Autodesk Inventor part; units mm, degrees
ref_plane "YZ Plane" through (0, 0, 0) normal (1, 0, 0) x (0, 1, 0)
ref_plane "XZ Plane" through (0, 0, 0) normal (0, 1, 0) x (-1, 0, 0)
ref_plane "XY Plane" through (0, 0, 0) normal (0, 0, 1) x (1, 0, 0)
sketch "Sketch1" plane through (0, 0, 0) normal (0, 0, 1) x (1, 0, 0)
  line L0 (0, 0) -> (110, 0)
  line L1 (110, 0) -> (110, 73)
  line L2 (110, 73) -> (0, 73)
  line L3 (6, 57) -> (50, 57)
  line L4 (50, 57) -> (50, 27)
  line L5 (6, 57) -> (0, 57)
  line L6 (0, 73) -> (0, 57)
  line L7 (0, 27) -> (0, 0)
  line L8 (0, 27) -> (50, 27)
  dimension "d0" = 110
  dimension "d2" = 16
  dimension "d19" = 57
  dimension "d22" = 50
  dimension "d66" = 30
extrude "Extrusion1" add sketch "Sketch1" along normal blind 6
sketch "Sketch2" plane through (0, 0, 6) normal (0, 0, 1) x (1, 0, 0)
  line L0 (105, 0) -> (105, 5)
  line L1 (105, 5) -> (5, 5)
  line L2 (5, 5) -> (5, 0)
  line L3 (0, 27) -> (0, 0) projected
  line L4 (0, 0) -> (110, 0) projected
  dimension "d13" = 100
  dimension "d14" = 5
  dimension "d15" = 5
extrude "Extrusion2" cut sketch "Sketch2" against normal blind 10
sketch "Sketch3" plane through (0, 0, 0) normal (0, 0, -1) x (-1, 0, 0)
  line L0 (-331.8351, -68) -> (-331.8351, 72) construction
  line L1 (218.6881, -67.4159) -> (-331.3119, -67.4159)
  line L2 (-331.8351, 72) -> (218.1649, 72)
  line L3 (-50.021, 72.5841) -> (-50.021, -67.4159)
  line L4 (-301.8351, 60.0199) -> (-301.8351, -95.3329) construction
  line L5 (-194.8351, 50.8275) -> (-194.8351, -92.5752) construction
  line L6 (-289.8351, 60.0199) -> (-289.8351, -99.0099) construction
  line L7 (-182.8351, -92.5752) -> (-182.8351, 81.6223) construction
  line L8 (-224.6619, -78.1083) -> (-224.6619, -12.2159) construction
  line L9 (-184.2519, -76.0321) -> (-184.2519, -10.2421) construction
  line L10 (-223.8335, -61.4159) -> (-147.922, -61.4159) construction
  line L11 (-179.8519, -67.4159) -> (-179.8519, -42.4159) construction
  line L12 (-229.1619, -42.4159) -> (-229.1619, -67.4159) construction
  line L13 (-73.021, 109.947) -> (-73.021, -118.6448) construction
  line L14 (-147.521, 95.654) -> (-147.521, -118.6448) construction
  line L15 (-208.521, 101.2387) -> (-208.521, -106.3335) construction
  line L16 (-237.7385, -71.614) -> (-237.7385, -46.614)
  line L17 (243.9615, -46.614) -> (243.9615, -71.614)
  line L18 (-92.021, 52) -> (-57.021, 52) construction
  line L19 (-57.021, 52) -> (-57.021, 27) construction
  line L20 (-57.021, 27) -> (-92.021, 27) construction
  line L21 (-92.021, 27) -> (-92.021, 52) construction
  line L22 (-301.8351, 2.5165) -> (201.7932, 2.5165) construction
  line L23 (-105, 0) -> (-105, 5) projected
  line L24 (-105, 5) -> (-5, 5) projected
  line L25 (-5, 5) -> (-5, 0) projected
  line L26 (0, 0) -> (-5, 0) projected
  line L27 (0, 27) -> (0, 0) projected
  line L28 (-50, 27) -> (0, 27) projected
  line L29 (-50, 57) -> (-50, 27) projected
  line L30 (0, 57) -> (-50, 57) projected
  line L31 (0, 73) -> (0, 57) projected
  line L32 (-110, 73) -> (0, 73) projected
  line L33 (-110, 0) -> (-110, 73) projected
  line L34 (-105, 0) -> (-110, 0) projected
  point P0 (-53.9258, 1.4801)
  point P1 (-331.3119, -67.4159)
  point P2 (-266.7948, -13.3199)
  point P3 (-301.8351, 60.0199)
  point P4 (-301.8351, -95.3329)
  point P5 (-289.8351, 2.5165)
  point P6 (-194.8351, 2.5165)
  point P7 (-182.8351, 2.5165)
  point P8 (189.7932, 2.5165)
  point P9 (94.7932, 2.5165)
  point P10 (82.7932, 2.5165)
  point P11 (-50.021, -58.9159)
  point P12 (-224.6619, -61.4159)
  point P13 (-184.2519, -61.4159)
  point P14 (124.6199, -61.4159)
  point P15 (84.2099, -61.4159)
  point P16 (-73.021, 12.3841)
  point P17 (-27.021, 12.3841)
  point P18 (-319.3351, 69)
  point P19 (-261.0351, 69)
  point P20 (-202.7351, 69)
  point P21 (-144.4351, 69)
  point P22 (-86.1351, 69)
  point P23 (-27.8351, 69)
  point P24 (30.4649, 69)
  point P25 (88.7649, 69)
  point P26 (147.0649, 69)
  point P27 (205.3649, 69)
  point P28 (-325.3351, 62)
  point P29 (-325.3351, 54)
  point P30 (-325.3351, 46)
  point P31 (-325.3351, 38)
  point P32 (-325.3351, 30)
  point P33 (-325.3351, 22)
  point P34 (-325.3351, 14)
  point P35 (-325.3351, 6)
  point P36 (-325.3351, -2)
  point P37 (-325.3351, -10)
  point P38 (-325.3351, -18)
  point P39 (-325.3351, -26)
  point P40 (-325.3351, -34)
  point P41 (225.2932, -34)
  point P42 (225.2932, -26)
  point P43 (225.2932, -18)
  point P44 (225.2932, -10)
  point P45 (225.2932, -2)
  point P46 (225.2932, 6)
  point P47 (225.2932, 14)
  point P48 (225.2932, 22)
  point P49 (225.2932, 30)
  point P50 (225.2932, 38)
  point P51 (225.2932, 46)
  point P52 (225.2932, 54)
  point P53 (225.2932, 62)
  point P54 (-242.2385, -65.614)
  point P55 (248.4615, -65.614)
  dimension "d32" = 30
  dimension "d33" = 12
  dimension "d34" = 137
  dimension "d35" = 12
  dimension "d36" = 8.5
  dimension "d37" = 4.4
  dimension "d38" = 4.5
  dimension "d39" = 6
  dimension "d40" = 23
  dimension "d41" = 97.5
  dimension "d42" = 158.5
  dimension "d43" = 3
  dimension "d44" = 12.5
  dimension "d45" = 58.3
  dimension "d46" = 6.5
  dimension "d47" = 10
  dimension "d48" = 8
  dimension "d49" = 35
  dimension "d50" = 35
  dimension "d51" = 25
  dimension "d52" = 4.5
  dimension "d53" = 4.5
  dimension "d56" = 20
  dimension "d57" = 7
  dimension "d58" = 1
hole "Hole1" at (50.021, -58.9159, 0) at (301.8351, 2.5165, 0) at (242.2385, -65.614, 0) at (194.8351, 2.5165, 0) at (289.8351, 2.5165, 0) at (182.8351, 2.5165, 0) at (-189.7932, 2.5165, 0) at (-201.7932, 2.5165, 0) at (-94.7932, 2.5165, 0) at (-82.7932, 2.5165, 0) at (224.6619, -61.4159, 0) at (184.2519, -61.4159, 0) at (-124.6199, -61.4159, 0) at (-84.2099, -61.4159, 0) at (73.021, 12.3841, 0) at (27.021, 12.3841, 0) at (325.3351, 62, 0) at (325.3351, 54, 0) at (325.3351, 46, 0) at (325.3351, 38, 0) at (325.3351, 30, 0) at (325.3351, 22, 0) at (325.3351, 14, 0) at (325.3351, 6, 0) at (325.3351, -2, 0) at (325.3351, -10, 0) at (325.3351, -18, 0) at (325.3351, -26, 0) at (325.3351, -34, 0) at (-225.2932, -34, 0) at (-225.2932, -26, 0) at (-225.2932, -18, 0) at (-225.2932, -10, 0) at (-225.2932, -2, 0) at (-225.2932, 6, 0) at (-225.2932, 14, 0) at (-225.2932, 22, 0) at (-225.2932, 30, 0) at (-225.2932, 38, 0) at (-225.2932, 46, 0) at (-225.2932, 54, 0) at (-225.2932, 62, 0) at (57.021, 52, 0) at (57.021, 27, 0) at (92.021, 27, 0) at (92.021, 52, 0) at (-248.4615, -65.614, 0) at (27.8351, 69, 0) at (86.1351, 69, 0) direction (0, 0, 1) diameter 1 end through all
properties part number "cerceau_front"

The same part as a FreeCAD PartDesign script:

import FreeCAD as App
import Part
import Sketcher
from FreeCAD import Vector
Q = App.Units.Quantity


def add_polygon(sketch, points):
    """Adds a closed chain of lines whose ends are joined by coincident constraints."""
    first, n = sketch.GeometryCount, len(points)
    for a, b in zip(points, points[1:] + points[:1]):
        sketch.addGeometry(Part.LineSegment(App.Vector(*a, 0), App.Vector(*b, 0)), False)
    for i in range(n):
        sketch.addConstraint(Sketcher.Constraint("Coincident", first + i, 2, first + (i + 1) % n, 1))

doc = App.newDocument("Part")
body = doc.addObject("PartDesign::Body", "Body")

# Sketch on XY plane
sketch1 = body.newObject("Sketcher::SketchObject", "Sketch")
sketch1.AttachmentSupport = (doc.getObject("XY_Plane"), [""])
sketch1.MapMode = "FlatFace"
add_polygon(sketch1, [(0, 27), (0, 0), (110, 0), (110, 73), (0, 73), (0, 57), (50, 57), (50, 27)])  # lines 0-7
sketch1.addConstraint([
    Sketcher.Constraint("Vertical", 0),
    Sketcher.Constraint("Horizontal", 1),
    Sketcher.Constraint("Vertical", 2),
    Sketcher.Constraint("Horizontal", 3),
    Sketcher.Constraint("Vertical", 4),
    Sketcher.Constraint("Horizontal", 5),
    Sketcher.Constraint("Vertical", 6),
    Sketcher.Constraint("Horizontal", 7),
    Sketcher.Constraint("Coincident", 0, 2, -1, 1),
    Sketcher.Constraint("PointOnObject", 3, 2, -2),
    Sketcher.Constraint("DistanceX", 1, 1, 1, 2, Q("110 mm")),
    Sketcher.Constraint("DistanceX", 5, 1, 5, 2, Q("50 mm")),
    Sketcher.Constraint("DistanceY", 4, 2, 4, 1, Q("16 mm")),
    Sketcher.Constraint("DistanceY", 6, 2, 6, 1, Q("30 mm")),
    Sketcher.Constraint("DistanceY", -1, 1, 4, 2, Q("57 mm")),
])
pad1 = body.newObject("PartDesign::Pad", "Pad")
pad1.Profile = sketch1
pad1.Length = 6

# Sketch on XY plane
sketch2 = body.newObject("Sketcher::SketchObject", "Sketch001")
sketch2.AttachmentSupport = (doc.getObject("XY_Plane"), [""])
sketch2.MapMode = "FlatFace"
sketch2.AttachmentOffset = App.Placement(Vector(0, 0, 6), App.Rotation())
add_polygon(sketch2, [(5, 0), (105, 0), (105, 5), (5, 5)])  # lines 0-3
sketch2.addConstraint([
    Sketcher.Constraint("Horizontal", 0),
    Sketcher.Constraint("Vertical", 1),
    Sketcher.Constraint("Horizontal", 2),
    Sketcher.Constraint("Vertical", 3),
    Sketcher.Constraint("PointOnObject", 0, 2, -1),
    Sketcher.Constraint("DistanceX", 0, 1, 0, 2, Q("100 mm")),
    Sketcher.Constraint("DistanceY", 1, 1, 1, 2, Q("5 mm")),
    Sketcher.Constraint("DistanceX", -1, 1, 2, 2, Q("5 mm")),
])
pocket1 = body.newObject("PartDesign::Pocket", "Pocket")
pocket1.Profile = sketch2
pocket1.Length = 10

# Sketch on XY plane
sketch3 = body.newObject("Sketcher::SketchObject", "Sketch002")
sketch3.AttachmentSupport = (doc.getObject("XY_Plane"), [""])
sketch3.MapMode = "FlatFace"
sketch3.addGeometry([
    Part.Circle(Vector(50, -58.9, 0), Vector(0, 0, 1), 0.5),  # 0
    Part.Circle(Vector(301.8, 2.5, 0), Vector(0, 0, 1), 0.5),  # 1
    Part.Circle(Vector(242.2, -65.6, 0), Vector(0, 0, 1), 0.5),  # 2
    Part.Circle(Vector(194.8, 2.5, 0), Vector(0, 0, 1), 0.5),  # 3
    Part.Circle(Vector(289.8, 2.5, 0), Vector(0, 0, 1), 0.5),  # 4
    Part.Circle(Vector(182.8, 2.5, 0), Vector(0, 0, 1), 0.5),  # 5
    Part.Circle(Vector(-189.8, 2.5, 0), Vector(0, 0, 1), 0.5),  # 6
    Part.Circle(Vector(-201.8, 2.5, 0), Vector(0, 0, 1), 0.5),  # 7
    Part.Circle(Vector(-94.8, 2.5, 0), Vector(0, 0, 1), 0.5),  # 8
    Part.Circle(Vector(-82.8, 2.5, 0), Vector(0, 0, 1), 0.5),  # 9
    Part.Circle(Vector(224.7, -61.4, 0), Vector(0, 0, 1), 0.5),  # 10
    Part.Circle(Vector(184.3, -61.4, 0), Vector(0, 0, 1), 0.5),  # 11
    Part.Circle(Vector(-124.6, -61.4, 0), Vector(0, 0, 1), 0.5),  # 12
    Part.Circle(Vector(-84.2, -61.4, 0), Vector(0, 0, 1), 0.5),  # 13
    Part.Circle(Vector(73, 12.4, 0), Vector(0, 0, 1), 0.5),  # 14
    Part.Circle(Vector(27, 12.4, 0), Vector(0, 0, 1), 0.5),  # 15
    Part.Circle(Vector(325.3, 62, 0), Vector(0, 0, 1), 0.5),  # 16
    Part.Circle(Vector(325.3, 54, 0), Vector(0, 0, 1), 0.5),  # 17
    Part.Circle(Vector(325.3, 46, 0), Vector(0, 0, 1), 0.5),  # 18
    Part.Circle(Vector(325.3, 38, 0), Vector(0, 0, 1), 0.5),  # 19
    Part.Circle(Vector(325.3, 30, 0), Vector(0, 0, 1), 0.5),  # 20
    Part.Circle(Vector(325.3, 22, 0), Vector(0, 0, 1), 0.5),  # 21
    Part.Circle(Vector(325.3, 14, 0), Vector(0, 0, 1), 0.5),  # 22
    Part.Circle(Vector(325.3, 6, 0), Vector(0, 0, 1), 0.5),  # 23
    Part.Circle(Vector(325.3, -2, 0), Vector(0, 0, 1), 0.5),  # 24
    Part.Circle(Vector(325.3, -10, 0), Vector(0, 0, 1), 0.5),  # 25
    Part.Circle(Vector(325.3, -18, 0), Vector(0, 0, 1), 0.5),  # 26
    Part.Circle(Vector(325.3, -26, 0), Vector(0, 0, 1), 0.5),  # 27
    Part.Circle(Vector(325.3, -34, 0), Vector(0, 0, 1), 0.5),  # 28
    Part.Circle(Vector(-225.3, -34, 0), Vector(0, 0, 1), 0.5),  # 29
    Part.Circle(Vector(-225.3, -26, 0), Vector(0, 0, 1), 0.5),  # 30
    Part.Circle(Vector(-225.3, -18, 0), Vector(0, 0, 1), 0.5),  # 31
    Part.Circle(Vector(-225.3, -10, 0), Vector(0, 0, 1), 0.5),  # 32
    Part.Circle(Vector(-225.3, -2, 0), Vector(0, 0, 1), 0.5),  # 33
    Part.Circle(Vector(-225.3, 6, 0), Vector(0, 0, 1), 0.5),  # 34
    Part.Circle(Vector(-225.3, 14, 0), Vector(0, 0, 1), 0.5),  # 35
    Part.Circle(Vector(-225.3, 22, 0), Vector(0, 0, 1), 0.5),  # 36
    Part.Circle(Vector(-225.3, 30, 0), Vector(0, 0, 1), 0.5),  # 37
    Part.Circle(Vector(-225.3, 38, 0), Vector(0, 0, 1), 0.5),  # 38
    Part.Circle(Vector(-225.3, 46, 0), Vector(0, 0, 1), 0.5),  # 39
    Part.Circle(Vector(-225.3, 54, 0), Vector(0, 0, 1), 0.5),  # 40
    Part.Circle(Vector(-225.3, 62, 0), Vector(0, 0, 1), 0.5),  # 41
    Part.Circle(Vector(57, 52, 0), Vector(0, 0, 1), 0.5),  # 42
    Part.Circle(Vector(57, 27, 0), Vector(0, 0, 1), 0.5),  # 43
    Part.Circle(Vector(92, 27, 0), Vector(0, 0, 1), 0.5),  # 44
    Part.Circle(Vector(92, 52, 0), Vector(0, 0, 1), 0.5),  # 45
    Part.Circle(Vector(-248.5, -65.6, 0), Vector(0, 0, 1), 0.5),  # 46
    Part.Circle(Vector(27.8, 69, 0), Vector(0, 0, 1), 0.5),  # 47
    Part.Circle(Vector(86.1, 69, 0), Vector(0, 0, 1), 0.5),  # 48
], False)
sketch3.addConstraint([
    Sketcher.Constraint("Equal", 0, 1),
    Sketcher.Constraint("Equal", 1, 2),
    Sketcher.Constraint("Equal", 2, 3),
    Sketcher.Constraint("Equal", 3, 4),
    Sketcher.Constraint("Equal", 4, 5),
    Sketcher.Constraint("Equal", 5, 6),
    Sketcher.Constraint("Equal", 6, 7),
    Sketcher.Constraint("Equal", 7, 8),
    Sketcher.Constraint("Equal", 8, 9),
    Sketcher.Constraint("Equal", 9, 10),
    Sketcher.Constraint("Equal", 10, 11),
    Sketcher.Constraint("Equal", 11, 12),
    Sketcher.Constraint("Equal", 12, 13),
    Sketcher.Constraint("Equal", 13, 14),
    Sketcher.Constraint("Equal", 14, 15),
    Sketcher.Constraint("Equal", 15, 16),
    Sketcher.Constraint("Equal", 16, 17),
    Sketcher.Constraint("Equal", 17, 18),
    Sketcher.Constraint("Equal", 18, 19),
    Sketcher.Constraint("Equal", 19, 20),
    Sketcher.Constraint("Equal", 20, 21),
    Sketcher.Constraint("Equal", 21, 22),
    Sketcher.Constraint("Equal", 22, 23),
    Sketcher.Constraint("Equal", 23, 24),
    Sketcher.Constraint("Equal", 24, 25),
    Sketcher.Constraint("Equal", 25, 26),
    Sketcher.Constraint("Equal", 26, 27),
    Sketcher.Constraint("Equal", 27, 28),
    Sketcher.Constraint("Equal", 28, 29),
    Sketcher.Constraint("Equal", 29, 30),
    Sketcher.Constraint("Equal", 30, 31),
    Sketcher.Constraint("Equal", 31, 32),
    Sketcher.Constraint("Equal", 32, 33),
    Sketcher.Constraint("Equal", 33, 34),
    Sketcher.Constraint("Equal", 34, 35),
    Sketcher.Constraint("Equal", 35, 36),
    Sketcher.Constraint("Equal", 36, 37),
    Sketcher.Constraint("Equal", 37, 38),
    Sketcher.Constraint("Equal", 38, 39),
    Sketcher.Constraint("Equal", 39, 40),
    Sketcher.Constraint("Equal", 40, 41),
    Sketcher.Constraint("Equal", 41, 42),
    Sketcher.Constraint("Equal", 42, 43),
    Sketcher.Constraint("Equal", 43, 44),
    Sketcher.Constraint("Equal", 44, 45),
    Sketcher.Constraint("Equal", 45, 46),
    Sketcher.Constraint("Equal", 46, 47),
    Sketcher.Constraint("Equal", 47, 48),
    Sketcher.Constraint("Horizontal", 1, 3, 3, 3),
    Sketcher.Constraint("Horizontal", 3, 3, 4, 3),
    Sketcher.Constraint("Horizontal", 4, 3, 5, 3),
    Sketcher.Constraint("Horizontal", 5, 3, 6, 3),
    Sketcher.Constraint("Horizontal", 6, 3, 7, 3),
    Sketcher.Constraint("Horizontal", 7, 3, 8, 3),
    Sketcher.Constraint("Horizontal", 8, 3, 9, 3),
    Sketcher.Constraint("Horizontal", 10, 3, 11, 3),
    Sketcher.Constraint("Horizontal", 11, 3, 12, 3),
    Sketcher.Constraint("Horizontal", 12, 3, 13, 3),
    Sketcher.Constraint("Horizontal", 14, 3, 15, 3),
    Sketcher.Constraint("Horizontal", 28, 3, 29, 3),
    Sketcher.Constraint("Horizontal", 27, 3, 30, 3),
    Sketcher.Constraint("Horizontal", 26, 3, 31, 3),
    Sketcher.Constraint("Horizontal", 25, 3, 32, 3),
    Sketcher.Constraint("Horizontal", 24, 3, 33, 3),
    Sketcher.Constraint("Horizontal", 23, 3, 34, 3),
    Sketcher.Constraint("Horizontal", 22, 3, 35, 3),
    Sketcher.Constraint("Horizontal", 21, 3, 36, 3),
    Sketcher.Constraint("Horizontal", 20, 3, 37, 3),
    Sketcher.Constraint("Horizontal", 19, 3, 38, 3),
    Sketcher.Constraint("Horizontal", 18, 3, 39, 3),
    Sketcher.Constraint("Horizontal", 17, 3, 40, 3),
    Sketcher.Constraint("Horizontal", 16, 3, 41, 3),
    Sketcher.Constraint("Horizontal", 43, 3, 44, 3),
    Sketcher.Constraint("Horizontal", 42, 3, 45, 3),
    Sketcher.Constraint("Horizontal", 2, 3, 46, 3),
    Sketcher.Constraint("Horizontal", 47, 3, 48, 3),
    Sketcher.Constraint("Vertical", 16, 3, 17, 3),
    Sketcher.Constraint("Vertical", 17, 3, 18, 3),
    Sketcher.Constraint("Vertical", 18, 3, 19, 3),
    Sketcher.Constraint("Vertical", 19, 3, 20, 3),
    Sketcher.Constraint("Vertical", 20, 3, 21, 3),
    Sketcher.Constraint("Vertical", 21, 3, 22, 3),
    Sketcher.Constraint("Vertical", 22, 3, 23, 3),
    Sketcher.Constraint("Vertical", 23, 3, 24, 3),
    Sketcher.Constraint("Vertical", 24, 3, 25, 3),
    Sketcher.Constraint("Vertical", 25, 3, 26, 3),
    Sketcher.Constraint("Vertical", 26, 3, 27, 3),
    Sketcher.Constraint("Vertical", 27, 3, 28, 3),
    Sketcher.Constraint("Vertical", 29, 3, 30, 3),
    Sketcher.Constraint("Vertical", 30, 3, 31, 3),
    Sketcher.Constraint("Vertical", 31, 3, 32, 3),
    Sketcher.Constraint("Vertical", 32, 3, 33, 3),
    Sketcher.Constraint("Vertical", 33, 3, 34, 3),
    Sketcher.Constraint("Vertical", 34, 3, 35, 3),
    Sketcher.Constraint("Vertical", 35, 3, 36, 3),
    Sketcher.Constraint("Vertical", 36, 3, 37, 3),
    Sketcher.Constraint("Vertical", 37, 3, 38, 3),
    Sketcher.Constraint("Vertical", 38, 3, 39, 3),
    Sketcher.Constraint("Vertical", 39, 3, 40, 3),
    Sketcher.Constraint("Vertical", 40, 3, 41, 3),
    Sketcher.Constraint("Vertical", 42, 3, 43, 3),
    Sketcher.Constraint("Vertical", 44, 3, 45, 3),
    Sketcher.Constraint("Diameter", 0, Q("1 mm")),
    Sketcher.Constraint("DistanceY", -1, 1, 16, 3, Q("62 mm")),
    Sketcher.Constraint("DistanceY", -1, 1, 17, 3, Q("54 mm")),
    Sketcher.Constraint("DistanceY", -1, 1, 18, 3, Q("46 mm")),
    Sketcher.Constraint("DistanceY", -1, 1, 19, 3, Q("38 mm")),
    Sketcher.Constraint("DistanceY", -1, 1, 20, 3, Q("30 mm")),
    Sketcher.Constraint("DistanceY", -1, 1, 21, 3, Q("22 mm")),
    Sketcher.Constraint("DistanceY", -1, 1, 22, 3, Q("14 mm")),
    Sketcher.Constraint("DistanceY", -1, 1, 23, 3, Q("6 mm")),
    Sketcher.Constraint("DistanceY", 24, 3, -1, 1, Q("2 mm")),
    Sketcher.Constraint("DistanceY", 25, 3, -1, 1, Q("10 mm")),
    Sketcher.Constraint("DistanceY", 26, 3, -1, 1, Q("18 mm")),
    Sketcher.Constraint("DistanceY", 27, 3, -1, 1, Q("26 mm")),
    Sketcher.Constraint("DistanceY", 28, 3, -1, 1, Q("34 mm")),
    Sketcher.Constraint("DistanceY", -1, 1, 42, 3, Q("52 mm")),
    Sketcher.Constraint("DistanceY", -1, 1, 43, 3, Q("27 mm")),
    Sketcher.Constraint("DistanceY", -1, 1, 47, 3, Q("69 mm")),
    Sketcher.Constraint("DistanceX", 3, 3, 1, 3, Q("107 mm")),
    Sketcher.Constraint("DistanceX", 4, 3, 1, 3, Q("12 mm")),
    Sketcher.Constraint("DistanceX", 5, 3, 3, 3, Q("12 mm")),
    Sketcher.Constraint("DistanceX", 7, 3, 6, 3, Q("12 mm")),
    Sketcher.Constraint("DistanceX", 6, 3, 8, 3, Q("95 mm")),
    Sketcher.Constraint("DistanceX", 8, 3, 9, 3, Q("12 mm")),
    Sketcher.Constraint("DistanceX", 0, 3, 14, 3, Q("23 mm")),
    Sketcher.Constraint("DistanceX", 15, 3, 14, 3, Q("46 mm")),
    Sketcher.Constraint("DistanceX", 42, 3, 14, 3, Q("16 mm")),
    Sketcher.Constraint("DistanceX", 14, 3, 44, 3, Q("19 mm")),
    Sketcher.Constraint("DistanceY", 12, 3, 0, 3, Q("2.5 mm")),
    Sketcher.Constraint("DistanceY", 0, 3, 14, 3, Q("71.3 mm")),
    Sketcher.Constraint("DistanceX", 1, 3, 16, 3, Q("23.5 mm")),
    Sketcher.Constraint("DistanceX", 29, 3, 7, 3, Q("23.5 mm")),
    Sketcher.Constraint("DistanceX", 12, 3, -1, 1, Q("124.62 mm")),
    Sketcher.Constraint("DistanceX", 13, 3, -1, 1, Q("84.21 mm")),
    Sketcher.Constraint("DistanceX", 11, 3, 10, 3, Q("40.41 mm")),
    Sketcher.Constraint("DistanceX", -1, 1, 0, 3, Q("50.021 mm")),
    Sketcher.Constraint("DistanceY", 0, 3, -1, 1, Q("58.916 mm")),
    Sketcher.Constraint("DistanceX", -1, 1, 1, 3, Q("301.835 mm")),
    Sketcher.Constraint("DistanceY", 2, 3, -1, 1, Q("65.614 mm")),
    Sketcher.Constraint("DistanceX", -1, 1, 10, 3, Q("224.662 mm")),
    Sketcher.Constraint("DistanceX", -1, 1, 47, 3, Q("27.835 mm")),
    Sketcher.Constraint("DistanceX", -1, 1, 48, 3, Q("86.135 mm")),
    Sketcher.Constraint("DistanceY", -1, 1, 1, 3, Q("2.5165 mm")),
    Sketcher.Constraint("DistanceX", -1, 1, 2, 3, Q("242.2385 mm")),
    Sketcher.Constraint("DistanceX", 6, 3, -1, 1, Q("189.7932 mm")),
    Sketcher.Constraint("DistanceX", 46, 3, -1, 1, Q("248.4615 mm")),
])
doc.recompute()
hole = body.newObject("PartDesign::Hole", "Hole")
hole.Profile = sketch3
hole.ThreadType = "None"
hole.Diameter = 1
hole.DepthType = "ThroughAll"
hole.Reversed = True

doc.recompute()
